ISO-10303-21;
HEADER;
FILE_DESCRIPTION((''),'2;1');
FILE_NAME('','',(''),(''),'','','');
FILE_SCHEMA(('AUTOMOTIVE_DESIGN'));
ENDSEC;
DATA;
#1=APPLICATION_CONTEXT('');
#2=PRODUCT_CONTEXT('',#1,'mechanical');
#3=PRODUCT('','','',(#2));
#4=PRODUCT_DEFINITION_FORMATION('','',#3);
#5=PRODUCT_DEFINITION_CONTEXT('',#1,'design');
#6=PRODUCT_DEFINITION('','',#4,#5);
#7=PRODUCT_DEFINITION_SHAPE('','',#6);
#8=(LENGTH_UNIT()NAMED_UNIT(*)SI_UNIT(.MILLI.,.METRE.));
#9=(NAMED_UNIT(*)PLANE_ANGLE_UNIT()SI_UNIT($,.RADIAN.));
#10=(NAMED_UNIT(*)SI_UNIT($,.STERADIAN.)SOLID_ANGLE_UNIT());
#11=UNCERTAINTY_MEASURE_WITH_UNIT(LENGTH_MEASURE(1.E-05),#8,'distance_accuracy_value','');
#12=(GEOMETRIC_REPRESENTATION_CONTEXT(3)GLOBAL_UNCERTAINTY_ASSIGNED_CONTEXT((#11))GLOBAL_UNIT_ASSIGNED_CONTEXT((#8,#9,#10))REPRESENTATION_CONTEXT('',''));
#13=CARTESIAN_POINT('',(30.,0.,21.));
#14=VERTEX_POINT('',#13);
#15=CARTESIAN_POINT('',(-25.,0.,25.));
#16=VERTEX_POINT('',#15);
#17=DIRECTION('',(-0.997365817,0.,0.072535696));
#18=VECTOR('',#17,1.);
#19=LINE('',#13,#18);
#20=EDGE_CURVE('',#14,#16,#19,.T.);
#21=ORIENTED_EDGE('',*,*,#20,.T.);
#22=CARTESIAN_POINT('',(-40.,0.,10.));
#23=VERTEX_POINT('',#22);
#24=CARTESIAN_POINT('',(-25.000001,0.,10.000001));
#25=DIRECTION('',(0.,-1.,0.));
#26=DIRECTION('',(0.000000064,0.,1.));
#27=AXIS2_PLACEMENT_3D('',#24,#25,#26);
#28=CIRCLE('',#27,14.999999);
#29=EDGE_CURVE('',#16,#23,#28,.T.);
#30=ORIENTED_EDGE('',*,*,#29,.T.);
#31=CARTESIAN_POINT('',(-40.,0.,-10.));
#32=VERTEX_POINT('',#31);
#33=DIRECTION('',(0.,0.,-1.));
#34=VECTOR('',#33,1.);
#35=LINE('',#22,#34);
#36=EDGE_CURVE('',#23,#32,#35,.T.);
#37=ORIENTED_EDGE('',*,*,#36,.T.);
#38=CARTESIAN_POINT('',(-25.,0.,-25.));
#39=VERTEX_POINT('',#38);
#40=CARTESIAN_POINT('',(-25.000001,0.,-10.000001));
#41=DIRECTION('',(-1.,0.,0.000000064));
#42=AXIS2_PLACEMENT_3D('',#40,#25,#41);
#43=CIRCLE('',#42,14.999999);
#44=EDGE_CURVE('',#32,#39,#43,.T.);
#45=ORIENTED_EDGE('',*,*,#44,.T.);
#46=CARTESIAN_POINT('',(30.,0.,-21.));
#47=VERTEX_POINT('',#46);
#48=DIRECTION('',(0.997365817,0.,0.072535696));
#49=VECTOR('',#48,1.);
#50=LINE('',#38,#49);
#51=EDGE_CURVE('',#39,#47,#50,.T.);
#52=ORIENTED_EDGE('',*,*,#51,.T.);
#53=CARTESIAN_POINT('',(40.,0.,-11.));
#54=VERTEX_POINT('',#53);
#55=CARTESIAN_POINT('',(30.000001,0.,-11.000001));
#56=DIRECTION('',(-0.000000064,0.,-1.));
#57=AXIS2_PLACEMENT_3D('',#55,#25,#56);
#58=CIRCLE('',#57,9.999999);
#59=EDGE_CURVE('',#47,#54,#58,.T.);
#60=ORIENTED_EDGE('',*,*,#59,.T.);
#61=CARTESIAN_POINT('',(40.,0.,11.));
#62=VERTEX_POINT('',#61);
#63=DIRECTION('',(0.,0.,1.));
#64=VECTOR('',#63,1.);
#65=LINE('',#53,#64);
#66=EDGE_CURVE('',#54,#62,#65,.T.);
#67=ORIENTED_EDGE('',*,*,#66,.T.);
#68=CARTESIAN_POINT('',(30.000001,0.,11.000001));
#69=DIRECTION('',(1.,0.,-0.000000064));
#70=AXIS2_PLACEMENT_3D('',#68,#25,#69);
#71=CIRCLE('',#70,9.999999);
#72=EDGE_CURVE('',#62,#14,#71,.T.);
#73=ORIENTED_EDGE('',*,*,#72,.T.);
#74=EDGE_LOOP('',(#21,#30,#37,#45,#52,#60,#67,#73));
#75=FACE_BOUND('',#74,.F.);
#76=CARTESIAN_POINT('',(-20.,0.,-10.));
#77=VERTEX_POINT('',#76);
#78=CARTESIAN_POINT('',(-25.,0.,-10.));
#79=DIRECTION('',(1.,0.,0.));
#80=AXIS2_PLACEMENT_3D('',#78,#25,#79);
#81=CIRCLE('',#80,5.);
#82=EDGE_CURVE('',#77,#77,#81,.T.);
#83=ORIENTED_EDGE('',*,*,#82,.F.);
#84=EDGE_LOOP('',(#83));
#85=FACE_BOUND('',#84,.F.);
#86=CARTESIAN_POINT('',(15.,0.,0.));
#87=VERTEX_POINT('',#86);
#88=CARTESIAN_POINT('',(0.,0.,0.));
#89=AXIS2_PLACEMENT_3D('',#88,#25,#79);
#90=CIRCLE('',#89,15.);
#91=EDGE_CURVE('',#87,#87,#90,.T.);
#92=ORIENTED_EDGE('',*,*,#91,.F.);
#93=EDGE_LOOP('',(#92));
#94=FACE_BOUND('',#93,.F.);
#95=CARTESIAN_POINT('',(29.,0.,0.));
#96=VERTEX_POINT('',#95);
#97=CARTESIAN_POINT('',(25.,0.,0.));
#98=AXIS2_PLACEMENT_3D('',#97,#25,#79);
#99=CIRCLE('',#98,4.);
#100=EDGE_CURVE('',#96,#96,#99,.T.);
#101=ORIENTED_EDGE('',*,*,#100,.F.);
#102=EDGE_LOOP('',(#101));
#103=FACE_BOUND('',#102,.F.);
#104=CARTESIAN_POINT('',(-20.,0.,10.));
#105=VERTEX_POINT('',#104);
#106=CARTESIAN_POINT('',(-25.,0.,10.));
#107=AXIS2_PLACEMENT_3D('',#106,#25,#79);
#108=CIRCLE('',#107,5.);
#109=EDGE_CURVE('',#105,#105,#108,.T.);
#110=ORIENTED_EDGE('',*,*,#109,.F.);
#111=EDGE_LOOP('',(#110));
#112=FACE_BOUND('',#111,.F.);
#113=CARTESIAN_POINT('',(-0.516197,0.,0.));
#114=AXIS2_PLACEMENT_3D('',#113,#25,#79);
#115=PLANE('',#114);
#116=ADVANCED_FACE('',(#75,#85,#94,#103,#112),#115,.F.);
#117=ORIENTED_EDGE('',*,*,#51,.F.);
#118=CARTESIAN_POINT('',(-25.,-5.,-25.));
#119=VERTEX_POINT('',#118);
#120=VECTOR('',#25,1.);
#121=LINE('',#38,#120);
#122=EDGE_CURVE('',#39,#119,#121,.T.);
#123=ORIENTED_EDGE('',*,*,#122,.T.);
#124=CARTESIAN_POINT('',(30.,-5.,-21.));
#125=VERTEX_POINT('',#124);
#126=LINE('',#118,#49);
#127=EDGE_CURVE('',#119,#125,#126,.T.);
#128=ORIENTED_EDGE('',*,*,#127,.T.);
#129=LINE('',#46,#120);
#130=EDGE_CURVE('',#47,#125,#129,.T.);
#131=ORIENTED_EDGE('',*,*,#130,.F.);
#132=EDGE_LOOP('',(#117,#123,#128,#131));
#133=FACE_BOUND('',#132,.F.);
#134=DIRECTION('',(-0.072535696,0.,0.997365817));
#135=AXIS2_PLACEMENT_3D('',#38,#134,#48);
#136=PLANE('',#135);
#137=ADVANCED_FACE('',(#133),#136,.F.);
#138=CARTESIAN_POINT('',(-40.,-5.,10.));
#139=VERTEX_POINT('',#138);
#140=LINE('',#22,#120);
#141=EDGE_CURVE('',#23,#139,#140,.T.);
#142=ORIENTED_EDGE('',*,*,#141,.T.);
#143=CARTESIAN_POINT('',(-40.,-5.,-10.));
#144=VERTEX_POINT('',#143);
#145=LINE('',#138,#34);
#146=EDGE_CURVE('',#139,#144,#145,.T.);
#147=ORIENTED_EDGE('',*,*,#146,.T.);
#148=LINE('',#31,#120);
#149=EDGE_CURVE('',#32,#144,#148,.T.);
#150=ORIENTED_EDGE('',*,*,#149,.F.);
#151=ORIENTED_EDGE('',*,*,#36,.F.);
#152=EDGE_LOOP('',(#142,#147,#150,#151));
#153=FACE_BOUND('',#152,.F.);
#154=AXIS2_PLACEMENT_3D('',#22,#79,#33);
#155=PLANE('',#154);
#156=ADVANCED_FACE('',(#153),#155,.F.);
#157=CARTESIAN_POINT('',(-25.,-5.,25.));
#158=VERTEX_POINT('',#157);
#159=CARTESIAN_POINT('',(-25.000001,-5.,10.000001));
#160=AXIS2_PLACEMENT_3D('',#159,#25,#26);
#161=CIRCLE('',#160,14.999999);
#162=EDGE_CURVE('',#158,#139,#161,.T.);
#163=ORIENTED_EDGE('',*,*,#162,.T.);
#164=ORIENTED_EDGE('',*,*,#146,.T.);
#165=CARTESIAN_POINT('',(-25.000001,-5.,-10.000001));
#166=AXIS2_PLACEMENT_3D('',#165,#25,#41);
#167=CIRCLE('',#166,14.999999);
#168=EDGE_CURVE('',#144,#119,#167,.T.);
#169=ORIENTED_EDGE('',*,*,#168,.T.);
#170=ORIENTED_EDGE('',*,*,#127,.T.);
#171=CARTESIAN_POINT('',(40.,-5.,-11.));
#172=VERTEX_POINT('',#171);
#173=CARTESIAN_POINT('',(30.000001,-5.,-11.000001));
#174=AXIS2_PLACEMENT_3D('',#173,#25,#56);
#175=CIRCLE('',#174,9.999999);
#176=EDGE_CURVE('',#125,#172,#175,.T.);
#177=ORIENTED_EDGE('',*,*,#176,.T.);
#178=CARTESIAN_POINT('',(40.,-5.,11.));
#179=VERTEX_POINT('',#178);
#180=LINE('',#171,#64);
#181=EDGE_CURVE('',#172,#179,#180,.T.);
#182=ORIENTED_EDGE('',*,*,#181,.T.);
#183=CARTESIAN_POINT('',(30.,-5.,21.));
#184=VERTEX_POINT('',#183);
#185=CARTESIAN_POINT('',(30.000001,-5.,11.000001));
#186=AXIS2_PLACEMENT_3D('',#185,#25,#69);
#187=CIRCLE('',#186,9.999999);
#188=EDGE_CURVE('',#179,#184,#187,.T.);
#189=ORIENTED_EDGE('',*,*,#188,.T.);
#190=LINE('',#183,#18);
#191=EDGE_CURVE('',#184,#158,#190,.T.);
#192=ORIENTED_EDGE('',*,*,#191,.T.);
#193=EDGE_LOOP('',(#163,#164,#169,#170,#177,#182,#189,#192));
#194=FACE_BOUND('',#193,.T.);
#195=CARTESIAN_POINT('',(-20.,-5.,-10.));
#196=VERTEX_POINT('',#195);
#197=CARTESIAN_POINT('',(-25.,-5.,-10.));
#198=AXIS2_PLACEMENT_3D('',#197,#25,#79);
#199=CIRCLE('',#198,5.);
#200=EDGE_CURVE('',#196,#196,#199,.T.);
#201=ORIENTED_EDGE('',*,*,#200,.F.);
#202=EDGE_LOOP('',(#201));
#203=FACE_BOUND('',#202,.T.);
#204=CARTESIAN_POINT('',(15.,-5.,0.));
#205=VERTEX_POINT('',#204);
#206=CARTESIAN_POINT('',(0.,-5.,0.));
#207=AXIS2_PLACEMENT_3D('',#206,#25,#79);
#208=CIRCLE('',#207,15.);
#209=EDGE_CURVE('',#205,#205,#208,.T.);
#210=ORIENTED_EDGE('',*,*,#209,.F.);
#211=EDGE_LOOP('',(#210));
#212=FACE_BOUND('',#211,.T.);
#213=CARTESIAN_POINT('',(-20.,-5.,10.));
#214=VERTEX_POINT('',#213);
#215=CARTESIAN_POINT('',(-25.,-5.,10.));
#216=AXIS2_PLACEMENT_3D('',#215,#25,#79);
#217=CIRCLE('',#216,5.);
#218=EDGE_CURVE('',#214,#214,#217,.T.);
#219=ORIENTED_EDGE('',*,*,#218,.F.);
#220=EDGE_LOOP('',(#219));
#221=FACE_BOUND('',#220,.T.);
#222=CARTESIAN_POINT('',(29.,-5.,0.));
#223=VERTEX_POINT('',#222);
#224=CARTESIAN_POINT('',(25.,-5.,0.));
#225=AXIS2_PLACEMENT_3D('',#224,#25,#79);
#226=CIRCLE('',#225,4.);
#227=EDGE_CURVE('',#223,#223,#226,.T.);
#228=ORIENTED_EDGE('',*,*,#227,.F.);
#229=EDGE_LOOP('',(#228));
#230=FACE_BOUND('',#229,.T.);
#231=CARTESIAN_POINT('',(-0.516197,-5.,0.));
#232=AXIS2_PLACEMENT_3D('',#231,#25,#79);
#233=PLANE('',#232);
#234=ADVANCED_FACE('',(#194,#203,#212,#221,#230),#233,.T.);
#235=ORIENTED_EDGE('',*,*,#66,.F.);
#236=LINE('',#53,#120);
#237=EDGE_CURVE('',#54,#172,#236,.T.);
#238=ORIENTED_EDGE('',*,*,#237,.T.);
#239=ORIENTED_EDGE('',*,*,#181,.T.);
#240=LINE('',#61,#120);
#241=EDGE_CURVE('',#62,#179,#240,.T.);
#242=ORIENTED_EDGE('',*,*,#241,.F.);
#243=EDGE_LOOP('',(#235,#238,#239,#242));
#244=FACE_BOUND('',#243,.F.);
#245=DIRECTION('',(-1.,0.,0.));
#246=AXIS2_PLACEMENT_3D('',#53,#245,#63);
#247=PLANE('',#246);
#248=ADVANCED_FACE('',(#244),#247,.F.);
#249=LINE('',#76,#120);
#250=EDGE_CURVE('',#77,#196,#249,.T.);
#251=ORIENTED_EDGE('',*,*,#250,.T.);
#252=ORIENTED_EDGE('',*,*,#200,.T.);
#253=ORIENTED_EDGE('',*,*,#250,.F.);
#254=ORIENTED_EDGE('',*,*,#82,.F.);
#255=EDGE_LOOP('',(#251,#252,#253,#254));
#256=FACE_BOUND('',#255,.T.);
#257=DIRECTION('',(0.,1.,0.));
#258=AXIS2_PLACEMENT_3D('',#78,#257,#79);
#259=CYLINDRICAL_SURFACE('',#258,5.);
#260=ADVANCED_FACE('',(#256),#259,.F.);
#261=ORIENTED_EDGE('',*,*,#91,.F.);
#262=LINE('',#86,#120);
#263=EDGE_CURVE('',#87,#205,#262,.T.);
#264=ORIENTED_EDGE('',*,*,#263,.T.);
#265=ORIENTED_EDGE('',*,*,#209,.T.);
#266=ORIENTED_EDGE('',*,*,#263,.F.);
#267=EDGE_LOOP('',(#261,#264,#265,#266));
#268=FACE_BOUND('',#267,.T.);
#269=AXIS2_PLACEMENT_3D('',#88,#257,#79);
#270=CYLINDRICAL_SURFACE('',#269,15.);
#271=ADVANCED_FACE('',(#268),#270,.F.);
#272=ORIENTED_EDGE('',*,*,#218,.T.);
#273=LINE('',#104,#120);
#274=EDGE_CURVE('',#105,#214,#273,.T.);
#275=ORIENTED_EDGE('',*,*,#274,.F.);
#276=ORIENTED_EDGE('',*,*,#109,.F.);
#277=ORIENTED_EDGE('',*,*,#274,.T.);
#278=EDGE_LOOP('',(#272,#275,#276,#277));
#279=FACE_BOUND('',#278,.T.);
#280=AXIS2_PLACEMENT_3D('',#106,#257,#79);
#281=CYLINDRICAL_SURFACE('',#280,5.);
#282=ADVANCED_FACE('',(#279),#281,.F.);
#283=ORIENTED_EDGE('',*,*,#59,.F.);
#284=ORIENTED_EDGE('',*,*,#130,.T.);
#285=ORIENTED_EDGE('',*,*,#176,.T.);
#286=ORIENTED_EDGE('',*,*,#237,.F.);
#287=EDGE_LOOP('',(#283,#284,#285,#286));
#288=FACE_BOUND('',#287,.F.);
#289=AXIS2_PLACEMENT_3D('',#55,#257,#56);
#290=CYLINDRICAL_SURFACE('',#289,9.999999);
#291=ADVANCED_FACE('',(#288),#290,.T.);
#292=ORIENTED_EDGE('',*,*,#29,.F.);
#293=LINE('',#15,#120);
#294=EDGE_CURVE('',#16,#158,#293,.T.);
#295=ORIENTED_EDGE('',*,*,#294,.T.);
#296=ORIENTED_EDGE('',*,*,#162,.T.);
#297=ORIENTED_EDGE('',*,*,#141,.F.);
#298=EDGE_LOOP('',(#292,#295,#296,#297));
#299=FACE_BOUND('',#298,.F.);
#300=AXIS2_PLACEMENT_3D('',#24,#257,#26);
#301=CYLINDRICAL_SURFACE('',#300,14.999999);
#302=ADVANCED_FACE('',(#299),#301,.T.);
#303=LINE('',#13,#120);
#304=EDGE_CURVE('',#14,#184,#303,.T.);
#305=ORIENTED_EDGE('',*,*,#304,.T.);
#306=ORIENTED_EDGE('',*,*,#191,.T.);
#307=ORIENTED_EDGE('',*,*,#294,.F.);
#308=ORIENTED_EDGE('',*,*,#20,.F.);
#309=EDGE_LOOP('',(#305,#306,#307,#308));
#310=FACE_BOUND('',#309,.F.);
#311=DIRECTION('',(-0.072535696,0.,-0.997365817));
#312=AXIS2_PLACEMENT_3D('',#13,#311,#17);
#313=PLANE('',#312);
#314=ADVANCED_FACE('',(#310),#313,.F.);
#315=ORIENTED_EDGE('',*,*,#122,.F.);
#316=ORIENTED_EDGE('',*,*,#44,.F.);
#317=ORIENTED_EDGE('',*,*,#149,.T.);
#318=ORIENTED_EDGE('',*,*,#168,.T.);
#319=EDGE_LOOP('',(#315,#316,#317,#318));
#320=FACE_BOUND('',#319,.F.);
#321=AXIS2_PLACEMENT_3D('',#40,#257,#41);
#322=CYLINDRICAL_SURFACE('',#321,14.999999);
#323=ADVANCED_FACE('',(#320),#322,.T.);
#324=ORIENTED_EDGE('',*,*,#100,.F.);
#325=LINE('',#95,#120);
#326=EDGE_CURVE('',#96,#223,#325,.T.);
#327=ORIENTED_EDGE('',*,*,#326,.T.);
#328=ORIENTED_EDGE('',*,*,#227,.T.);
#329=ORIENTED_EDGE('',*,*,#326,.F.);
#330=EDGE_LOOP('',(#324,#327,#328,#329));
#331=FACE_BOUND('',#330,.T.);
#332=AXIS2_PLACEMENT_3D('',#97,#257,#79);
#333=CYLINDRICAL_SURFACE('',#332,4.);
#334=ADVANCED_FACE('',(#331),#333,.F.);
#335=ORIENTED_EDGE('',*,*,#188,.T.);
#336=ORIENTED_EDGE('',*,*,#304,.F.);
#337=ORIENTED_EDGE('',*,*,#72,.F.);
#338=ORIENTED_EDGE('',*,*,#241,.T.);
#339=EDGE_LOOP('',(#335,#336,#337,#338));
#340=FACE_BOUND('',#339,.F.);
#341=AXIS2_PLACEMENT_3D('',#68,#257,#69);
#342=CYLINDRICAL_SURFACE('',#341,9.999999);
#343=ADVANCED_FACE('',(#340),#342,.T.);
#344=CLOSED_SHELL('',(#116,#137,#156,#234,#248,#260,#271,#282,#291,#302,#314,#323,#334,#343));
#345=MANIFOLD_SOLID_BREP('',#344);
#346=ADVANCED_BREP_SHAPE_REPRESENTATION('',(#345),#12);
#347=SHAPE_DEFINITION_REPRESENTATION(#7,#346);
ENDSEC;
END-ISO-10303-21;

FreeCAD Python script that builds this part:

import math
import FreeCAD as App
import Part
import Sketcher
from FreeCAD import Vector

doc = App.newDocument("Part")
body = doc.addObject("PartDesign::Body", "Body")

sketch1 = doc.addObject("Sketcher::SketchObject", "Sketch")
body.addObject(sketch1)
sketch1.AttachmentSupport = (doc.XZ_Plane, [""])
sketch1.MapMode = "FlatFace"
sketch1.addGeometry([
    Part.LineSegment(Vector(-40, 10, 0), Vector(-40, -10, 0)),
    Part.ArcOfCircle(Part.Circle(Vector(-25, -10, 0), Vector(0, 0, 1), 15), math.radians(180), math.radians(270)),
    Part.LineSegment(Vector(-25, -25, 0), Vector(30, -21, 0)),
    Part.ArcOfCircle(Part.Circle(Vector(30, -11, 0), Vector(0, 0, 1), 10), math.radians(-90), math.radians(0)),
    Part.LineSegment(Vector(40, -11, 0), Vector(40, 11, 0)),
    Part.ArcOfCircle(Part.Circle(Vector(30, 11, 0), Vector(0, 0, 1), 10), math.radians(0), math.radians(90)),
    Part.LineSegment(Vector(30, 21, 0), Vector(-25, 25, 0)),
    Part.ArcOfCircle(Part.Circle(Vector(-25, 10, 0), Vector(0, 0, 1), 15), math.radians(90), math.radians(180)),
    Part.Circle(Vector(-25, -10, 0), Vector(0, 0, 1), 5),
    Part.Circle(Vector(-25, 10, 0), Vector(0, 0, 1), 5),
    Part.Circle(Vector(0, 0, 0), Vector(0, 0, 1), 15),
    Part.Circle(Vector(25, 0, 0), Vector(0, 0, 1), 4),
], False)
sketch1.addConstraint([
    Sketcher.Constraint("Tangent", 0, 2, 1, 1),
    Sketcher.Constraint("Coincident", 1, 2, 2, 1),
    Sketcher.Constraint("Coincident", 2, 2, 3, 1),
    Sketcher.Constraint("Tangent", 3, 2, 4, 1),
    Sketcher.Constraint("Tangent", 4, 2, 5, 1),
    Sketcher.Constraint("Coincident", 5, 2, 6, 1),
    Sketcher.Constraint("Coincident", 6, 2, 7, 1),
    Sketcher.Constraint("Tangent", 7, 2, 0, 1),
    Sketcher.Constraint("Vertical", 0),
    Sketcher.Constraint("Vertical", 4),
    Sketcher.Constraint("Coincident", 10, 3, -1, 1),
    Sketcher.Constraint("Coincident", 8, 3, 1, 3),
    Sketcher.Constraint("Coincident", 9, 3, 7, 3),
    Sketcher.Constraint("Equal", 3, 5),
    Sketcher.Constraint("Equal", 1, 7),
    Sketcher.Constraint("Equal", 8, 9),
    Sketcher.Constraint("Equal", 7, 10),
    Sketcher.Constraint("Symmetric", 2, 2, 5, 2, -1),
    Sketcher.Constraint("Symmetric", 1, 2, 6, 2, -1),
    Sketcher.Constraint("PointOnObject", 11, 3, -1),
    Sketcher.Constraint("Vertical", 9, 3, 1, 2),
    Sketcher.Constraint("Vertical", 5, 3, 2, 2),
    Sketcher.Constraint("Diameter", 8, 10.0),
    Sketcher.Constraint("Diameter", 10, 30.0),
    Sketcher.Constraint("Diameter", 11, 8.0),
    Sketcher.Constraint("Radius", 3, 9.999999),
    Sketcher.Constraint("DistanceY", 0, 2, 0, 1, 20.0),
    Sketcher.Constraint("DistanceY", 4, 1, 4, 2, 22.0),
    Sketcher.Constraint("DistanceX", 1, 3, -1, 1, 25.000001),
    Sketcher.Constraint("DistanceX", -1, 1, 3, 3, 30.000001),
    Sketcher.Constraint("DistanceX", -1, 1, 11, 3, 25.0),
])
pad1 = doc.addObject("PartDesign::Pad", "Pad")
body.addObject(pad1)
pad1.Profile = sketch1
pad1.Length = 5

doc.recompute()
